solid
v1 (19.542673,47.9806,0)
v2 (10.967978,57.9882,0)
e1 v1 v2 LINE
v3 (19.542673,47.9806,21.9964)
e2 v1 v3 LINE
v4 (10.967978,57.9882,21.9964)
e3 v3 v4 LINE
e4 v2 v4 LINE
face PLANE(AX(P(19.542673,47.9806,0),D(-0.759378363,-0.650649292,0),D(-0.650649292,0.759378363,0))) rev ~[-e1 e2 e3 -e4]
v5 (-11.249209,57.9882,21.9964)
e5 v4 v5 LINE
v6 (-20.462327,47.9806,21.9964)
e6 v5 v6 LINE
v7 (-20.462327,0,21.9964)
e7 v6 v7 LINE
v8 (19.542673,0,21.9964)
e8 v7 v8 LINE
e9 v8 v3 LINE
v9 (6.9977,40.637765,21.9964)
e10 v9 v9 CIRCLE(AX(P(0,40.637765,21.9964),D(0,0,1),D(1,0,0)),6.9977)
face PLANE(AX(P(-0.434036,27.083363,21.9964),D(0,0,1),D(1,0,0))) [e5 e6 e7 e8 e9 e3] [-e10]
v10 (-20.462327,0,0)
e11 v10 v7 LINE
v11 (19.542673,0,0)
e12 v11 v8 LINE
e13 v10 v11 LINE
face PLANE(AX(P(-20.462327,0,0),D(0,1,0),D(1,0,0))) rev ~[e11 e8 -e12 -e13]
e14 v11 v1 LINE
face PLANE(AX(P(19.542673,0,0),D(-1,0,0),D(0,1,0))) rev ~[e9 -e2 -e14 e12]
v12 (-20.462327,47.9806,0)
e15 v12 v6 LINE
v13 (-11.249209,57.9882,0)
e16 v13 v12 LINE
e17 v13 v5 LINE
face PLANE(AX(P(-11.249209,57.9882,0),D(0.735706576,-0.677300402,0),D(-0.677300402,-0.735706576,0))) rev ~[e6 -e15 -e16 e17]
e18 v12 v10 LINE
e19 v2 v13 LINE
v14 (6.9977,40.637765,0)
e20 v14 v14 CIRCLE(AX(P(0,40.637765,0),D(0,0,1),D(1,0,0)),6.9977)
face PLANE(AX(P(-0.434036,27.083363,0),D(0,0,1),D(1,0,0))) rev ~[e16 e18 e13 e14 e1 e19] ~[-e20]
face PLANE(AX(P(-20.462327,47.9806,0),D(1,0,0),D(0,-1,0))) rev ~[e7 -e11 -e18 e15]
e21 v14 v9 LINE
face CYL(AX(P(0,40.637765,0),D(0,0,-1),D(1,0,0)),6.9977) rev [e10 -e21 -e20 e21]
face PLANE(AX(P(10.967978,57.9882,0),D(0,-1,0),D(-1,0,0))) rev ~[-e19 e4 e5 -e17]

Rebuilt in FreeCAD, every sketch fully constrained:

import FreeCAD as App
import Part
import Sketcher
from FreeCAD import Vector
Q = App.Units.Quantity

doc = App.newDocument("Part")
params = doc.addObject("Spreadsheet::Sheet", "Params")
for row, (alias, value) in enumerate([
    ("sketch1_diameter", "0.551 in"),
    ("sketch1_width", "1.575 in"),
    ("sketch1_height", "1.889 in"),
    ("pad1_length", "0.866 in"),
], start=1):
    params.set(f"A{row}", alias)
    params.set(f"B{row}", "=" + value)
    params.setAlias(f"B{row}", alias)

body = doc.addObject("PartDesign::Body", "Body")

# Sketch on XY plane
sketch1 = body.newObject("Sketcher::SketchObject", "Sketch")
sketch1.AttachmentSupport = (doc.getObject("XY_Plane"), [""])
sketch1.MapMode = "FlatFace"
sketch1.addGeometry([
    Part.LineSegment(Vector(-20, 0, 0), Vector(20, 0, 0)),  # 0
    Part.LineSegment(Vector(20, 0, 0), Vector(20, 48, 0)),  # 1
    Part.LineSegment(Vector(20, 48, 0), Vector(11, 58, 0)),  # 2
    Part.LineSegment(Vector(11, 58, 0), Vector(-11, 58, 0)),  # 3
    Part.LineSegment(Vector(-11, 58, 0), Vector(-20, 48, 0)),  # 4
    Part.LineSegment(Vector(-20, 48, 0), Vector(-20, 0, 0)),  # 5
    Part.Circle(Vector(0, 41, 0), Vector(0, 0, 1), 7),  # 6
], False)
sketch1.addConstraint([
    Sketcher.Constraint("Coincident", 0, 2, 1, 1),
    Sketcher.Constraint("Coincident", 1, 2, 2, 1),
    Sketcher.Constraint("Coincident", 2, 2, 3, 1),
    Sketcher.Constraint("Coincident", 3, 2, 4, 1),
    Sketcher.Constraint("Coincident", 4, 2, 5, 1),
    Sketcher.Constraint("Coincident", 5, 2, 0, 1),
    Sketcher.Constraint("Horizontal", 0),
    Sketcher.Constraint("Vertical", 1),
    Sketcher.Constraint("Horizontal", 3),
    Sketcher.Constraint("Vertical", 5),
    Sketcher.Constraint("PointOnObject", 6, 3, -2),
    Sketcher.Constraint("PointOnObject", 0, 2, -1),
    Sketcher.Constraint("Horizontal", 1, 2, 4, 2),
    Sketcher.Constraint("Diameter", 6, Q("0.551 in")),
    Sketcher.Constraint("DistanceX", 0, 1, 0, 2, Q("1.575 in")),
    Sketcher.Constraint("DistanceY", 1, 1, 1, 2, Q("1.889 in")),
    Sketcher.Constraint("DistanceY", -1, 1, 2, 2, Q("2.283 in")),
    Sketcher.Constraint("DistanceX", 3, 2, 3, 1, 22.217187),
    Sketcher.Constraint("DistanceX", 3, 2, -1, 1, 11.249209),
    Sketcher.Constraint("Distance", 2, 13.178674),
    Sketcher.Constraint("DistanceY", -1, 1, 6, 3, 40.637765),
])
sketch1.setExpression("Constraints[13]", "Params.sketch1_diameter")
sketch1.setExpression("Constraints[14]", "Params.sketch1_width")
sketch1.setExpression("Constraints[15]", "Params.sketch1_height")
pad1 = body.newObject("PartDesign::Pad", "Pad")
pad1.Profile = sketch1
pad1.setExpression("Length", "Params.pad1_length")

doc.recompute()
